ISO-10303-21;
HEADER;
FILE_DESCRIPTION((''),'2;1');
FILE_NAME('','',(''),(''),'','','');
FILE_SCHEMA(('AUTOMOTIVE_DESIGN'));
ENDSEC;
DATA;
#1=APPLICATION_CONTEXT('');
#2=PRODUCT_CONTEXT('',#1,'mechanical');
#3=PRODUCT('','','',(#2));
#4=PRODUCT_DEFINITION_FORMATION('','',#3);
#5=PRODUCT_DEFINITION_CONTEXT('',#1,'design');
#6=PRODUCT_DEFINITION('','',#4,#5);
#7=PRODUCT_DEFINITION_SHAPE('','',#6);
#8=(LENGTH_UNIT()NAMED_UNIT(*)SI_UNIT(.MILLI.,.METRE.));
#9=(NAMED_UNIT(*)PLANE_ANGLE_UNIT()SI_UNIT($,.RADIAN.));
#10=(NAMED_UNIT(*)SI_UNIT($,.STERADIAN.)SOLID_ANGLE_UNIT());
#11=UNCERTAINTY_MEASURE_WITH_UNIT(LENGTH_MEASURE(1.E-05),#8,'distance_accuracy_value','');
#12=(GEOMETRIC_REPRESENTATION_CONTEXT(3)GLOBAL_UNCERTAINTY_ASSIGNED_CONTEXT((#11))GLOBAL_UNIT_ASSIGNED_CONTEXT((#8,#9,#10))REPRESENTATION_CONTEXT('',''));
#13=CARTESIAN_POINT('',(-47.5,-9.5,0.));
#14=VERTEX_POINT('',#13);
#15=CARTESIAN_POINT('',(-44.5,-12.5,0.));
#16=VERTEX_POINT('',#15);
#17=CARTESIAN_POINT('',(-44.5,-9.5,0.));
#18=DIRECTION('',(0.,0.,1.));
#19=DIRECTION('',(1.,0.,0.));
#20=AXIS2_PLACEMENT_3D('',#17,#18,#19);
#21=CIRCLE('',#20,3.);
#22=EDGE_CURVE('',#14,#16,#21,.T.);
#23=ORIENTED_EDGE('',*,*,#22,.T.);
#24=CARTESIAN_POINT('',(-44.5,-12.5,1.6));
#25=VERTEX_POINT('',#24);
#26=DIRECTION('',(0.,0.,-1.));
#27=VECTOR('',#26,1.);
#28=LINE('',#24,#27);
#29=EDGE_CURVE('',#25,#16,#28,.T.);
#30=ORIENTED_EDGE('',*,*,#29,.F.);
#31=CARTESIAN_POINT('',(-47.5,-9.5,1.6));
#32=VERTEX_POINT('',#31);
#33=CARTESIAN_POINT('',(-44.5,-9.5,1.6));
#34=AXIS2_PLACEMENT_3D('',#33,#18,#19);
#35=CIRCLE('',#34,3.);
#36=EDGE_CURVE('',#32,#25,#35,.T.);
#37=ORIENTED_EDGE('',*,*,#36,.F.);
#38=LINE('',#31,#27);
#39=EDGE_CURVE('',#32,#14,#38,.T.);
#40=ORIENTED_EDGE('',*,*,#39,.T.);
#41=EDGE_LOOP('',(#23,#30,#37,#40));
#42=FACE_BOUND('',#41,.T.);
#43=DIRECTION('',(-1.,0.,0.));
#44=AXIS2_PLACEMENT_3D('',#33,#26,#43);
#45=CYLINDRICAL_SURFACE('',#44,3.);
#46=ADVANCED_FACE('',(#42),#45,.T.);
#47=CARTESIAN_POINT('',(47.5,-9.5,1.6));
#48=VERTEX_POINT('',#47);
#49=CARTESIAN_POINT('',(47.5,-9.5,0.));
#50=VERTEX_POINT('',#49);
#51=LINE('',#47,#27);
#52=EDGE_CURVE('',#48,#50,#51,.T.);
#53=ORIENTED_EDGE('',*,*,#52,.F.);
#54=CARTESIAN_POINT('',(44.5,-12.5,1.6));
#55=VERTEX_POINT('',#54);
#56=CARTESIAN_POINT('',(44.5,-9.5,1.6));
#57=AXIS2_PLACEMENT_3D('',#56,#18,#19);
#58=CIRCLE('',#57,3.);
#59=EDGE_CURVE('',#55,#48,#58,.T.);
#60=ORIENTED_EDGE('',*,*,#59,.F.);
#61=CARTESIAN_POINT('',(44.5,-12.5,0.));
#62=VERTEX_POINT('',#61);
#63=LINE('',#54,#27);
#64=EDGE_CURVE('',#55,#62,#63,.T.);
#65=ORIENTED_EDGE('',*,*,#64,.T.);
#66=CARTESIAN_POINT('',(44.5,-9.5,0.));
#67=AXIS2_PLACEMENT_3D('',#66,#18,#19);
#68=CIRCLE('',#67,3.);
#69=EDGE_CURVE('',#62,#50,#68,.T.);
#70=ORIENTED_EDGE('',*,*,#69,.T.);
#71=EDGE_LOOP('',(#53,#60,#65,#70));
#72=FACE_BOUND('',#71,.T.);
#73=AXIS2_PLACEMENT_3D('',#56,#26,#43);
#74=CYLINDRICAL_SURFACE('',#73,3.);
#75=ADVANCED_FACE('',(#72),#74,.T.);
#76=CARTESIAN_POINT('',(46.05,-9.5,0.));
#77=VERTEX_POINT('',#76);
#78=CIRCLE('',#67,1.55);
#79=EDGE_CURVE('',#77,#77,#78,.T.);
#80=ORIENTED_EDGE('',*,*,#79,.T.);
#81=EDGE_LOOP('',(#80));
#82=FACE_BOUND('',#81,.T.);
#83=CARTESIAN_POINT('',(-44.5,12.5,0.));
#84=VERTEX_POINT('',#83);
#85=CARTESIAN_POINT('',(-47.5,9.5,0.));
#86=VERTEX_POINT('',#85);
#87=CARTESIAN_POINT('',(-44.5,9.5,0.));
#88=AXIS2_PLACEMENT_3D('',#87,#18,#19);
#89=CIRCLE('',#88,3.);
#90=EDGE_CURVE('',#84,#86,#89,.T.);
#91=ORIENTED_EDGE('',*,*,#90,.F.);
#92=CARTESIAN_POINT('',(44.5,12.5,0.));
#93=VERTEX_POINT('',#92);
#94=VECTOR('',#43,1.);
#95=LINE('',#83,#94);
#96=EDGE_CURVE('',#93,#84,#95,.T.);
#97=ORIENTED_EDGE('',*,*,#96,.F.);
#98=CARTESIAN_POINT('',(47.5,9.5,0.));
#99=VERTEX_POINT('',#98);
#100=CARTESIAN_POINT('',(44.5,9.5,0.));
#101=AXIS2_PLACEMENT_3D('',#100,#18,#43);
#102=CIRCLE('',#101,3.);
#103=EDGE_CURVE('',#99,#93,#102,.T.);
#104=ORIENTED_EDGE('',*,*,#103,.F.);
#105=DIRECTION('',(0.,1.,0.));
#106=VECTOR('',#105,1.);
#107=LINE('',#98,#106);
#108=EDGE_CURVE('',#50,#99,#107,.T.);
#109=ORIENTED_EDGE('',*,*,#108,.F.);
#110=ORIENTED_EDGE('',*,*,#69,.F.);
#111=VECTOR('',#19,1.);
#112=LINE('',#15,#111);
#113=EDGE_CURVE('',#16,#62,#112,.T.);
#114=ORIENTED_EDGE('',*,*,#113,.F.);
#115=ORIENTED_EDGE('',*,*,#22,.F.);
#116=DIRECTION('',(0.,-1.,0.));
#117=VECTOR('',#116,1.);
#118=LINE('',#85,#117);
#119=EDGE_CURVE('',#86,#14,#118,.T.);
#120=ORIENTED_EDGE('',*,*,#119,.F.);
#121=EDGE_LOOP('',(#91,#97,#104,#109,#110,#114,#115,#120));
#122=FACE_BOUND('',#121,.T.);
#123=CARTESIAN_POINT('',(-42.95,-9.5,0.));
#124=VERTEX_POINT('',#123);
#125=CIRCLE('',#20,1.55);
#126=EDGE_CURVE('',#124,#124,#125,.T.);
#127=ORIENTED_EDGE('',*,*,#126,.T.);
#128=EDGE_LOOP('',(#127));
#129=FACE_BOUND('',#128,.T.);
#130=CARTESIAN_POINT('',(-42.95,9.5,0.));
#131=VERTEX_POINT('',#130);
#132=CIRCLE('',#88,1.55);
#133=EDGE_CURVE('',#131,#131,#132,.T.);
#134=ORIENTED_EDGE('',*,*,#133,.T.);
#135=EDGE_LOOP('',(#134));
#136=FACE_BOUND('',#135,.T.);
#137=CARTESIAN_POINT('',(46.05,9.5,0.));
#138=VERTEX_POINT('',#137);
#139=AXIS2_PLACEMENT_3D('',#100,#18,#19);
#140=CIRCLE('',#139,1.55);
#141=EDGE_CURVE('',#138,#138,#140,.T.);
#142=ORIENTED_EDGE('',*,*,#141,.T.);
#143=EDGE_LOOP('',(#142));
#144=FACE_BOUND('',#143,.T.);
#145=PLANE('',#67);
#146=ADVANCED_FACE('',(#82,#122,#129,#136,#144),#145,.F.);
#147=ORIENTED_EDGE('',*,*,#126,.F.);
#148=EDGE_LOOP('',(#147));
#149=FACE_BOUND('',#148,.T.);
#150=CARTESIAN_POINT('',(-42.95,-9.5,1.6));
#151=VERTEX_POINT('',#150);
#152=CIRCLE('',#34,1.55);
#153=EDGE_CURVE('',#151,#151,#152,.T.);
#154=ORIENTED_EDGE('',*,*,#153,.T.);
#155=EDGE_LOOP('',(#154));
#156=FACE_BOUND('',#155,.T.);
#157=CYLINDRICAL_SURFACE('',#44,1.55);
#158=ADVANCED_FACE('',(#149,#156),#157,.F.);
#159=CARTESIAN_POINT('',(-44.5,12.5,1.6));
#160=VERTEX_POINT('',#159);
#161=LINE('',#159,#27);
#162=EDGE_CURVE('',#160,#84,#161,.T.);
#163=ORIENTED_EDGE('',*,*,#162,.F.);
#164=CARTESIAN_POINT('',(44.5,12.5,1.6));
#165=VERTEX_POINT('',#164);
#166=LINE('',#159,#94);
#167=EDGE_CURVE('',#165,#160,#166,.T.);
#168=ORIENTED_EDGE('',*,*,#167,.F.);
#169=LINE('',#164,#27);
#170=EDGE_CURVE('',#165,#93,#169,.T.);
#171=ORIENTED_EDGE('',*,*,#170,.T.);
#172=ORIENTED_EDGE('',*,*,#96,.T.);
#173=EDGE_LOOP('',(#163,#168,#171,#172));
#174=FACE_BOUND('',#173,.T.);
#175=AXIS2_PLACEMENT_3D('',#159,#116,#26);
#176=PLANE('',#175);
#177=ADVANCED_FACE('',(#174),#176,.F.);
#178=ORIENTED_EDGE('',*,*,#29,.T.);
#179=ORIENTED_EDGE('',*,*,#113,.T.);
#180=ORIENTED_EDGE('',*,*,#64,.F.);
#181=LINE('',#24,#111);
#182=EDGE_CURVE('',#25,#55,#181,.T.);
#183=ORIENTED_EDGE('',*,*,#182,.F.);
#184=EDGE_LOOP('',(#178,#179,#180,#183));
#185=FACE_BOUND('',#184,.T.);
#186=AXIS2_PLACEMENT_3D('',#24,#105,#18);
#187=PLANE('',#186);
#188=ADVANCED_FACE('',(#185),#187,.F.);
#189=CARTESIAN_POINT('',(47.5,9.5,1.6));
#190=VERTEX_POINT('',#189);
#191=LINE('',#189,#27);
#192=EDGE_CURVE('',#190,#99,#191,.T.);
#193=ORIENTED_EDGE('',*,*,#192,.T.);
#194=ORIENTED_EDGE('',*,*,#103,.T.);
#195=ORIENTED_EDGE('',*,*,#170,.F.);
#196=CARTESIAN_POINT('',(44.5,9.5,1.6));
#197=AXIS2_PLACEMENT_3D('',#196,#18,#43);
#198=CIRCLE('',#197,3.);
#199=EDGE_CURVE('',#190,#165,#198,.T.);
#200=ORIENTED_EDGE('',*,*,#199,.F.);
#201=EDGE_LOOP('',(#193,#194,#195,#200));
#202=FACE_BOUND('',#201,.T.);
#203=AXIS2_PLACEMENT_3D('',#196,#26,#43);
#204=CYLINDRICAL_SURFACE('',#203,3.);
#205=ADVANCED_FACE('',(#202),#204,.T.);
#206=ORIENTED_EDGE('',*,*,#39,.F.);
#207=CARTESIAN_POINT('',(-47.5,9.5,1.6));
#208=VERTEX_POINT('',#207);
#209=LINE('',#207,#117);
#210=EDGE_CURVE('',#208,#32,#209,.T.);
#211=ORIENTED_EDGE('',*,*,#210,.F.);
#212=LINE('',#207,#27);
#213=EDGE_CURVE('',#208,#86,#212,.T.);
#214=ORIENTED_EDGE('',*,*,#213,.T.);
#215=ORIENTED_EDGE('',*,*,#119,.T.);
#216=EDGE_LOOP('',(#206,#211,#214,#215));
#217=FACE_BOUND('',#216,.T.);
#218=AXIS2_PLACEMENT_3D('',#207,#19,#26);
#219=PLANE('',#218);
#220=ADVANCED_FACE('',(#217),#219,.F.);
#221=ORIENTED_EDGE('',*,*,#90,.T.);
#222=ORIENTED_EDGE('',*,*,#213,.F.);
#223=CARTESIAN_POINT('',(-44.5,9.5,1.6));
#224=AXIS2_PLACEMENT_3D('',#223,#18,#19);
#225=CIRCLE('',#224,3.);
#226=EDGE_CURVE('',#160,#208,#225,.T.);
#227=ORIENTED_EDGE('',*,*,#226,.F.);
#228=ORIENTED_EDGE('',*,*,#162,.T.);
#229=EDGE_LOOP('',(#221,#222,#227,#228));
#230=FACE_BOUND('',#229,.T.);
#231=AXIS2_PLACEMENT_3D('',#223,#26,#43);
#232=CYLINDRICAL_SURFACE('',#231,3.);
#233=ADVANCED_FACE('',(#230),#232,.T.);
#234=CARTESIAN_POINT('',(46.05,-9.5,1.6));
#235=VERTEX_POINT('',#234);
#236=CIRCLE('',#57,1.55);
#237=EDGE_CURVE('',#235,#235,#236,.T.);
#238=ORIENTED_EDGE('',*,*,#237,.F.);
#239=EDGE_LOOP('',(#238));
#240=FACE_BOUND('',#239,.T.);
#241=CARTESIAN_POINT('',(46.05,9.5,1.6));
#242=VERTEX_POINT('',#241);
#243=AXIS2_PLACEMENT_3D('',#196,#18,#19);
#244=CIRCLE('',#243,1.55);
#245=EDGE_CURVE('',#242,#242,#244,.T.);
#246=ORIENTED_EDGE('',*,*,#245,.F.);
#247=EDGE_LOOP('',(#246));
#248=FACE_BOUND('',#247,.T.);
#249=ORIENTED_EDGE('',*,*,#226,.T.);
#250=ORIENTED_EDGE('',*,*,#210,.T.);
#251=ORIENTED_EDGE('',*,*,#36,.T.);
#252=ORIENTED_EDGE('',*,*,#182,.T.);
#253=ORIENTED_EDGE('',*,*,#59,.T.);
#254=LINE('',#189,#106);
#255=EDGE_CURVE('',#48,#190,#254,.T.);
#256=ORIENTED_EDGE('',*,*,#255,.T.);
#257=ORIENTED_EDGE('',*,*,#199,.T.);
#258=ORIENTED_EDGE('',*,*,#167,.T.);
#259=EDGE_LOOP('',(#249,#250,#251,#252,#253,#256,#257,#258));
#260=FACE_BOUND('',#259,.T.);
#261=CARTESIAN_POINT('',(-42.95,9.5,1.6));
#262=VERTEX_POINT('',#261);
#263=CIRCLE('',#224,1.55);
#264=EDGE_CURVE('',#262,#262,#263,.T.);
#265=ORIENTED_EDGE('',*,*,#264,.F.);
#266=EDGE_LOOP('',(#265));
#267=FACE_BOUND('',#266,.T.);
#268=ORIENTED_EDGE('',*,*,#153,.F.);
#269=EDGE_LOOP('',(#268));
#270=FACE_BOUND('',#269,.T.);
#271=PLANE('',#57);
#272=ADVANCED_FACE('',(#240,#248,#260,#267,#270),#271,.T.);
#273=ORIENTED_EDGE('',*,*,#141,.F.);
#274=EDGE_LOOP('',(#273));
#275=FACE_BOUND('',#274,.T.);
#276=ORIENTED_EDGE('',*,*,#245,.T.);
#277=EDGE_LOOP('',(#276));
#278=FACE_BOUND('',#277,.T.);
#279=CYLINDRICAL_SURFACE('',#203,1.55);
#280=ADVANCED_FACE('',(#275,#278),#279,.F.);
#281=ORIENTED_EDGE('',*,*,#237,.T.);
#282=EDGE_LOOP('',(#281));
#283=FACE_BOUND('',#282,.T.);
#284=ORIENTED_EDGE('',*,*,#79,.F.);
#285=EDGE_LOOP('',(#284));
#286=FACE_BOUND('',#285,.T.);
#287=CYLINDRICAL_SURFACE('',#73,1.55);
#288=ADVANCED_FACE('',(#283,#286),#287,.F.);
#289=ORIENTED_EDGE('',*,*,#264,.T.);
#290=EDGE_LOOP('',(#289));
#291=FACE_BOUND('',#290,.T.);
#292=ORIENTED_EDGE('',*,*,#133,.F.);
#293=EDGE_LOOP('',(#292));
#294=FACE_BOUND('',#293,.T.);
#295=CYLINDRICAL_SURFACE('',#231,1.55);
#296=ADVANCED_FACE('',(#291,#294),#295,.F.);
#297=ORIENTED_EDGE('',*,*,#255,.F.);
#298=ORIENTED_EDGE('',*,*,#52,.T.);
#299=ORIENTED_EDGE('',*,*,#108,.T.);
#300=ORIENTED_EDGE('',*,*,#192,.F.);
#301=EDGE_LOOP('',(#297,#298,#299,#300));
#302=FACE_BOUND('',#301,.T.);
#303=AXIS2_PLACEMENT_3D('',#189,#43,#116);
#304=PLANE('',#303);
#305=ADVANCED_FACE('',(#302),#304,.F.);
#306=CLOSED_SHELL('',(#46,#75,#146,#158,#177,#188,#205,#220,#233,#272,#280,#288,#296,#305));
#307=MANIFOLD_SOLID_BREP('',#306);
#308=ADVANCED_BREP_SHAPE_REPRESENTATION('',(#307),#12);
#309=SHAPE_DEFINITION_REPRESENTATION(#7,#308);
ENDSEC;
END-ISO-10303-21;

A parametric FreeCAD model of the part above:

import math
import FreeCAD as App
import Part
import Sketcher
Q = App.Units.Quantity

doc = App.newDocument("Part")
body = doc.addObject("PartDesign::Body", "Body")

sketch1 = body.newObject("Sketcher::SketchObject", "Sketch")
sketch1.AttachmentSupport = (doc.getObject("XY_Plane"), [""])
sketch1.MapMode = "FlatFace"
sketch1.addGeometry([
    Part.LineSegment(App.Vector(44.5, 12.5, 0), App.Vector(-44.5, 12.5, 0)),
    Part.ArcOfCircle(Part.Circle(App.Vector(-44.5, 9.5, 0), App.Vector(0, 0, 1), 3), math.radians(90), math.radians(180)),
    Part.LineSegment(App.Vector(-47.5, 9.5, 0), App.Vector(-47.5, -9.5, 0)),
    Part.ArcOfCircle(Part.Circle(App.Vector(-44.5, -9.5, 0), App.Vector(0, 0, 1), 3), math.radians(180), math.radians(270)),
    Part.LineSegment(App.Vector(-44.5, -12.5, 0), App.Vector(44.5, -12.5, 0)),
    Part.ArcOfCircle(Part.Circle(App.Vector(44.5, -9.5, 0), App.Vector(0, 0, 1), 3), math.radians(-90), math.radians(0)),
    Part.LineSegment(App.Vector(47.5, -9.5, 0), App.Vector(47.5, 9.5, 0)),
    Part.ArcOfCircle(Part.Circle(App.Vector(44.5, 9.5, 0), App.Vector(0, 0, 1), 3), math.radians(0), math.radians(90)),
    Part.Circle(App.Vector(44.5, -9.5, 0), App.Vector(0, 0, 1), 1.55),
    Part.Circle(App.Vector(-44.5, -9.5, 0), App.Vector(0, 0, 1), 1.55),
    Part.Circle(App.Vector(44.5, 9.5, 0), App.Vector(0, 0, 1), 1.55),
    Part.Circle(App.Vector(-44.5, 9.5, 0), App.Vector(0, 0, 1), 1.55),
], False)
sketch1.addConstraint([
    Sketcher.Constraint("Tangent", 0, 2, 1, 1),
    Sketcher.Constraint("Tangent", 1, 2, 2, 1),
    Sketcher.Constraint("Tangent", 2, 2, 3, 1),
    Sketcher.Constraint("Tangent", 3, 2, 4, 1),
    Sketcher.Constraint("Tangent", 4, 2, 5, 1),
    Sketcher.Constraint("Tangent", 5, 2, 6, 1),
    Sketcher.Constraint("Tangent", 6, 2, 7, 1),
    Sketcher.Constraint("Tangent", 7, 2, 0, 1),
    Sketcher.Constraint("Horizontal", 0),
    Sketcher.Constraint("Vertical", 2),
    Sketcher.Constraint("Horizontal", 4),
    Sketcher.Constraint("Vertical", 6),
    Sketcher.Constraint("Coincident", 8, 3, 5, 3),
    Sketcher.Constraint("Coincident", 9, 3, 3, 3),
    Sketcher.Constraint("Coincident", 10, 3, 7, 3),
    Sketcher.Constraint("Coincident", 11, 3, 1, 3),
    Sketcher.Constraint("Equal", 1, 3),
    Sketcher.Constraint("Equal", 3, 5),
    Sketcher.Constraint("Equal", 5, 7),
    Sketcher.Constraint("Equal", 8, 9),
    Sketcher.Constraint("Equal", 9, 10),
    Sketcher.Constraint("Equal", 10, 11),
    Sketcher.Constraint("Symmetric", 1, 3, 5, 3, -1, 1),
    Sketcher.Constraint("Radius", 1, Q("3 mm")),
    Sketcher.Constraint("Diameter", 8, Q("3.1 mm")),
    Sketcher.Constraint("DistanceX", 0, 2, 0, 1, Q("89 mm")),
    Sketcher.Constraint("DistanceY", 2, 2, 2, 1, Q("19 mm")),
])
pad1 = body.newObject("PartDesign::Pad", "Pad")
pad1.Profile = sketch1
pad1.Length = 1.6

doc.recompute()
